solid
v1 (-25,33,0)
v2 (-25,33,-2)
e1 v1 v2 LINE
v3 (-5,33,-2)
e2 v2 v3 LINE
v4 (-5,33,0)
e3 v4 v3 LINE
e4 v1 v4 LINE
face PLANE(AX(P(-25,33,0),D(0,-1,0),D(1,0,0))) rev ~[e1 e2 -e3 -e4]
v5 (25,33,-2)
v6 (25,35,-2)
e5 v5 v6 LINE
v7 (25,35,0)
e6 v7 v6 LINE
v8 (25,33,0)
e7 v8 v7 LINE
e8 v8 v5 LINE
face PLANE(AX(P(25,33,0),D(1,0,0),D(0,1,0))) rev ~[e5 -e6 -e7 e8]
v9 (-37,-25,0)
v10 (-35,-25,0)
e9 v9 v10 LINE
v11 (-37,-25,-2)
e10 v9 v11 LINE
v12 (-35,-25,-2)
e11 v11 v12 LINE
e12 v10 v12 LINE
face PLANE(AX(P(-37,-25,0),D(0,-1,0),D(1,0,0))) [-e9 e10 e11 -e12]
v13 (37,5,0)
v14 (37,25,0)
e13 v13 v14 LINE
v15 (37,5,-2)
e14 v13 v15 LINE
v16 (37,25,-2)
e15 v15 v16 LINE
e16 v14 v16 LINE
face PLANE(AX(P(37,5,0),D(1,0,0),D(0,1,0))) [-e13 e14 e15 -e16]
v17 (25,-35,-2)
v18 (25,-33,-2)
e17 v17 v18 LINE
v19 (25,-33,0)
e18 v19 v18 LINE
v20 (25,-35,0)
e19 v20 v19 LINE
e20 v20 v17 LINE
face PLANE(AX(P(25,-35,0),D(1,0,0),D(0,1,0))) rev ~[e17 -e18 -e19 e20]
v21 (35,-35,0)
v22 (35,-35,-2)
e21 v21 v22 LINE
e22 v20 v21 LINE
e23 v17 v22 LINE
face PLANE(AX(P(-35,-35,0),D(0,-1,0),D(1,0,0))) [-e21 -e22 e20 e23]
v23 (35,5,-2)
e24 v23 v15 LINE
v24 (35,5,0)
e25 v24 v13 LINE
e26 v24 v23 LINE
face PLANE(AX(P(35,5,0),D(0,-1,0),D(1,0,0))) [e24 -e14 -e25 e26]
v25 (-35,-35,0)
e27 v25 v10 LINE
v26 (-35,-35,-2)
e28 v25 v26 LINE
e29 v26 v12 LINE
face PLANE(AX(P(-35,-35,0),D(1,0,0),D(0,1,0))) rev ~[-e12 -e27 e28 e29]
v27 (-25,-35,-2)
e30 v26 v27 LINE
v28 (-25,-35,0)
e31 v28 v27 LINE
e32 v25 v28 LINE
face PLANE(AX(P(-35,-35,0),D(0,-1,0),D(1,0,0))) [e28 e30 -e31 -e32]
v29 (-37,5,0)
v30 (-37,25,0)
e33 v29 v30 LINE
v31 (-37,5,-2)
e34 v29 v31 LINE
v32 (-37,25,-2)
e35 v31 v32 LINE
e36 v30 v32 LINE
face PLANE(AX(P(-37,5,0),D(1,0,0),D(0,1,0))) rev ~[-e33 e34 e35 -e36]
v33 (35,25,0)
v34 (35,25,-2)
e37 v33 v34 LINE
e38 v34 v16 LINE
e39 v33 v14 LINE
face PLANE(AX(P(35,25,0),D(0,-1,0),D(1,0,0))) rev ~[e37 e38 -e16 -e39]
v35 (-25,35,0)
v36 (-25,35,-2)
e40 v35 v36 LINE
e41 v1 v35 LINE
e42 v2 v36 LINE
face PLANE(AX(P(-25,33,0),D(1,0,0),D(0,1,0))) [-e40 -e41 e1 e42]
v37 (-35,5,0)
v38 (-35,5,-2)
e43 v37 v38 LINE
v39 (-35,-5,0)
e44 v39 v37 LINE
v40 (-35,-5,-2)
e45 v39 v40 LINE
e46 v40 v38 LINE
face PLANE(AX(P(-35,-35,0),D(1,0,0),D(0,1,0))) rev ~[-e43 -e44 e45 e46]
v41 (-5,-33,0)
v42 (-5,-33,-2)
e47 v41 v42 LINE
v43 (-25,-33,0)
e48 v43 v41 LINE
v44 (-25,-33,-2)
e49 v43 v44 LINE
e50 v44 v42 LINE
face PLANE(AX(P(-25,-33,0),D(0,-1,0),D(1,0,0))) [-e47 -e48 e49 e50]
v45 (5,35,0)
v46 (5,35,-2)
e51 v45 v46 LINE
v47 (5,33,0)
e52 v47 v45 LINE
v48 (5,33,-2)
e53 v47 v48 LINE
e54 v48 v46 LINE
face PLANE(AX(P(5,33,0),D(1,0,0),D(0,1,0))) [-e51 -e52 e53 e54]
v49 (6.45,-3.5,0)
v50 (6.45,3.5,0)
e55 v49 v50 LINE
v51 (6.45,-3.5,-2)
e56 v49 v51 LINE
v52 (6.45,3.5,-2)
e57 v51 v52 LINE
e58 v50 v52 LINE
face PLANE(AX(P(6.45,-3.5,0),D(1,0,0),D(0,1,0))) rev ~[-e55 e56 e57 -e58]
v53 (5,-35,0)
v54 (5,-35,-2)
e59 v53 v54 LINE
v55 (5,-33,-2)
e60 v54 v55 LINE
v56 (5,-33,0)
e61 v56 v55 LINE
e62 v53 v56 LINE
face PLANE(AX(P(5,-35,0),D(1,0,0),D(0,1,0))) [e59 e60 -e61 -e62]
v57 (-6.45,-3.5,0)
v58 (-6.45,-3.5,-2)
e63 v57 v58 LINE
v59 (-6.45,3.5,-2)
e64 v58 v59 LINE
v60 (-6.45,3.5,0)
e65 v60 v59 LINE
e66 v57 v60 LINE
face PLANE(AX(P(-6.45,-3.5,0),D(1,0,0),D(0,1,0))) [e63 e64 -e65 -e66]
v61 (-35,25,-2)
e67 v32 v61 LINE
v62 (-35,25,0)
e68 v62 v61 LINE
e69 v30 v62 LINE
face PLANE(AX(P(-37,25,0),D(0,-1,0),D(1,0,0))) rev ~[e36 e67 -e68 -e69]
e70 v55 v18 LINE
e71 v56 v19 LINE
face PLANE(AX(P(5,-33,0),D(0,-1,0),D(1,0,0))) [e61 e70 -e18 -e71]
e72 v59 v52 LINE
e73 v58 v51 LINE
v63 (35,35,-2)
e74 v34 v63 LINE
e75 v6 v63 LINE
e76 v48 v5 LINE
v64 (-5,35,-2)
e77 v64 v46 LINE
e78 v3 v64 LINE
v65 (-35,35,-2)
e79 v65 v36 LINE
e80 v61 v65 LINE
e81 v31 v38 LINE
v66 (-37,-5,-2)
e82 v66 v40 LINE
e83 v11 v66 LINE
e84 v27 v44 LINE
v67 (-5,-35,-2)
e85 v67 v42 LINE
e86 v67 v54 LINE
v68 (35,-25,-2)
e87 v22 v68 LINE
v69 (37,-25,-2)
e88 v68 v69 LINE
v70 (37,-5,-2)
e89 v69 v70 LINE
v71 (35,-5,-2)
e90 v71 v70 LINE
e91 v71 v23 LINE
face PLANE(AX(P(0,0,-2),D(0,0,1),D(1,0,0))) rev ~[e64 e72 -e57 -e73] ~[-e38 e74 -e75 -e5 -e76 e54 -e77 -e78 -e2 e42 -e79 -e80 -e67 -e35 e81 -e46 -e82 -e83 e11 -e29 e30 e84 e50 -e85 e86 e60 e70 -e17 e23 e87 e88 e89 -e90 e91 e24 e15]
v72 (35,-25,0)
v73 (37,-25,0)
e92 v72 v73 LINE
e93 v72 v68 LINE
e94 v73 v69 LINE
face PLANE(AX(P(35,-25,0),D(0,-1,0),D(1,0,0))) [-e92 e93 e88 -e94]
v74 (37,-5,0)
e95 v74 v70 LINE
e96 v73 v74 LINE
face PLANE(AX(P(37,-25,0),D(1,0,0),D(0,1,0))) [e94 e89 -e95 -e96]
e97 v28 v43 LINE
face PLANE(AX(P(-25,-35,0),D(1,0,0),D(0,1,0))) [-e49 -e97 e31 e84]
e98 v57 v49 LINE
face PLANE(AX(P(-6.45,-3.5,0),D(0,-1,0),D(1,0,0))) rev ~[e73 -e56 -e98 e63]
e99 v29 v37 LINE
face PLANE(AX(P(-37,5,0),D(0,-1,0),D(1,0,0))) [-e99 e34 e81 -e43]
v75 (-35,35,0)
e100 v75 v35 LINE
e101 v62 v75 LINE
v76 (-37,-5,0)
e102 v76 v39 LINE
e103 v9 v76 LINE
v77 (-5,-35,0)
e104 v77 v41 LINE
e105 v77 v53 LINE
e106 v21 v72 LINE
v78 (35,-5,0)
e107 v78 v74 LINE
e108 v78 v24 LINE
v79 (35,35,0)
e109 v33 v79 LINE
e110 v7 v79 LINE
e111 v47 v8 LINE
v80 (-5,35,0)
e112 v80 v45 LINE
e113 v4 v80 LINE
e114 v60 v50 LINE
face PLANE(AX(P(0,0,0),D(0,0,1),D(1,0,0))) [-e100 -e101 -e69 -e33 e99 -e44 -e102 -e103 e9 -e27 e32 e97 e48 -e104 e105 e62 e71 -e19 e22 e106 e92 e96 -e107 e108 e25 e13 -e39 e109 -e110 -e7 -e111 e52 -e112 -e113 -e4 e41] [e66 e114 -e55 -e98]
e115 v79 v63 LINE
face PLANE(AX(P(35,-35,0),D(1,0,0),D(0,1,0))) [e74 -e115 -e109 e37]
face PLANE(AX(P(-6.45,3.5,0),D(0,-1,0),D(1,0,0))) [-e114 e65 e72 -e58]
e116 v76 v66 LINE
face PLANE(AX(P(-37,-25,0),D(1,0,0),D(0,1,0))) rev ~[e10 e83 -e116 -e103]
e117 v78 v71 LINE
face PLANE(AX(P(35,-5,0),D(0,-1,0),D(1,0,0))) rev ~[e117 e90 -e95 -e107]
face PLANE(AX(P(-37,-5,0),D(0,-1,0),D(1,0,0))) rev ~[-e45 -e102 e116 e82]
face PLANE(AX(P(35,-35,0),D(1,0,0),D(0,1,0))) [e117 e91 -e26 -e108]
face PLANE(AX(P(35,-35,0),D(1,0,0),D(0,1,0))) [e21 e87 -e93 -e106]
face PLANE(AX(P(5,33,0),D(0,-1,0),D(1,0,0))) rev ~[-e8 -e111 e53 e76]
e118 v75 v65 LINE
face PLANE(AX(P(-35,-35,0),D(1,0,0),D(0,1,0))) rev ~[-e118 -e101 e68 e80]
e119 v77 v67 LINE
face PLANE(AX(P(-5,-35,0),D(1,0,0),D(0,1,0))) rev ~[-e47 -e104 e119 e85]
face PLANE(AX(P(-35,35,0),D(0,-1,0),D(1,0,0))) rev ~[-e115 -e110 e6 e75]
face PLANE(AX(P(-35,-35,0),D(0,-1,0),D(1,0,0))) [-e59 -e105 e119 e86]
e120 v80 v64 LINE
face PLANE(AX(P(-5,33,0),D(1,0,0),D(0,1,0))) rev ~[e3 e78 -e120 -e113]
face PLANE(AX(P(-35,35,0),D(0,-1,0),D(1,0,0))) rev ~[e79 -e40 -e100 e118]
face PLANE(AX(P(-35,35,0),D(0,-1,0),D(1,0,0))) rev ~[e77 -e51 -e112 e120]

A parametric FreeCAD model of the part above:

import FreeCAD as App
import Part
import Sketcher

V = App.Vector


def add_polygon(sketch, points):
    """Adds a closed chain of lines whose ends are joined by coincident constraints."""
    first, n = sketch.GeometryCount, len(points)
    for a, b in zip(points, points[1:] + points[:1]):
        sketch.addGeometry(Part.LineSegment(App.Vector(*a, 0), App.Vector(*b, 0)), False)
    for i in range(n):
        sketch.addConstraint(Sketcher.Constraint("Coincident", first + i, 2, first + (i + 1) % n, 1))

doc = App.newDocument("Part")
body = doc.addObject("PartDesign::Body", "Body")

sketch1 = body.newObject("Sketcher::SketchObject", "Sketch")
sketch1.AttachmentSupport = (doc.getObject("XY_Plane"), [""])
sketch1.MapMode = "FlatFace"
add_polygon(sketch1, [(-35, 35), (-35, -35), (35, -35), (35, 35)])
sketch1.addConstraint([
    Sketcher.Constraint("Vertical", 0),
    Sketcher.Constraint("Horizontal", 1),
    Sketcher.Constraint("Vertical", 2),
    Sketcher.Constraint("Horizontal", 3),
    Sketcher.Constraint("Symmetric", 0, 2, 2, 2, -1, 1),
    Sketcher.Constraint("Equal", 3, 0),
    Sketcher.Constraint("DistanceX", 1, 1, 1, 2, 70.0),
])
pad1 = body.newObject("PartDesign::Pad", "Pad")
pad1.Profile = sketch1
pad1.Length = 2
pad1.Reversed = True

sketch2 = body.newObject("Sketcher::SketchObject", "Sketch001")
sketch2.AttachmentSupport = (doc.getObject("XY_Plane"), [""])
sketch2.MapMode = "FlatFace"
add_polygon(sketch2, [(-37, 25), (-37, 5), (-35, 5), (-35, 25)])
add_polygon(sketch2, [(-37, -5), (-37, -25), (-35, -25), (-35, -5)])
add_polygon(sketch2, [(35, -5), (35, -25), (37, -25), (37, -5)])
add_polygon(sketch2, [(35, 25), (35, 5), (37, 5), (37, 25)])
sketch2.addConstraint([
    Sketcher.Constraint("Vertical", 0),
    Sketcher.Constraint("Horizontal", 1),
    Sketcher.Constraint("Vertical", 2),
    Sketcher.Constraint("Horizontal", 3),
    Sketcher.Constraint("Vertical", 4),
    Sketcher.Constraint("Horizontal", 5),
    Sketcher.Constraint("Vertical", 6),
    Sketcher.Constraint("Horizontal", 7),
    Sketcher.Constraint("Vertical", 8),
    Sketcher.Constraint("Horizontal", 9),
    Sketcher.Constraint("Vertical", 10),
    Sketcher.Constraint("Horizontal", 11),
    Sketcher.Constraint("Vertical", 12),
    Sketcher.Constraint("Horizontal", 13),
    Sketcher.Constraint("Vertical", 14),
    Sketcher.Constraint("Horizontal", 15),
    Sketcher.Constraint("Symmetric", 2, 2, 8, 2, -1, 1),
    Sketcher.Constraint("Symmetric", 0, 2, 10, 2, -1, 1),
    Sketcher.Constraint("Symmetric", 6, 2, 12, 2, -1, 1),
    Sketcher.Constraint("Symmetric", 4, 2, 14, 2, -1, 1),
    Sketcher.Constraint("Symmetric", 5, 2, 8, 2, -2),
    Sketcher.Constraint("Symmetric", 7, 2, 10, 2, -2),
    Sketcher.Constraint("DistanceX", 1, 1, 1, 2, 2.0),
    Sketcher.Constraint("DistanceY", 0, 2, 0, 1, 20.0),
    Sketcher.Constraint("DistanceX", 0, 2, -1, 1, 37.0),
    Sketcher.Constraint("DistanceY", -1, 1, 0, 2, 5.0),
])
pad2 = body.newObject("PartDesign::Pad", "Pad001")
pad2.Profile = sketch2
pad2.Length = 2
pad2.Reversed = True

sketch3 = body.newObject("Sketcher::SketchObject", "Sketch002")
sketch3.AttachmentSupport = (doc.getObject("XY_Plane"), [""])
sketch3.MapMode = "FlatFace"
add_polygon(sketch3, [(-25, 35), (-25, 33), (-5, 33), (-5, 35)])
add_polygon(sketch3, [(5, 35), (5, 33), (25, 33), (25, 35)])
add_polygon(sketch3, [(-25, -33), (-25, -35), (-5, -35), (-5, -33)])
add_polygon(sketch3, [(5, -33), (5, -35), (25, -35), (25, -33)])
sketch3.addConstraint([
    Sketcher.Constraint("Vertical", 0),
    Sketcher.Constraint("Horizontal", 1),
    Sketcher.Constraint("Vertical", 2),
    Sketcher.Constraint("Horizontal", 3),
    Sketcher.Constraint("Vertical", 4),
    Sketcher.Constraint("Horizontal", 5),
    Sketcher.Constraint("Vertical", 6),
    Sketcher.Constraint("Horizontal", 7),
    Sketcher.Constraint("Vertical", 8),
    Sketcher.Constraint("Horizontal", 9),
    Sketcher.Constraint("Vertical", 10),
    Sketcher.Constraint("Horizontal", 11),
    Sketcher.Constraint("Vertical", 12),
    Sketcher.Constraint("Horizontal", 13),
    Sketcher.Constraint("Vertical", 14),
    Sketcher.Constraint("Horizontal", 15),
    Sketcher.Constraint("Symmetric", 6, 2, 8, 2, -1, 1),
    Sketcher.Constraint("Symmetric", 4, 2, 10, 2, -1, 1),
    Sketcher.Constraint("Symmetric", 2, 2, 12, 2, -1, 1),
    Sketcher.Constraint("Symmetric", 0, 2, 14, 2, -1, 1),
    Sketcher.Constraint("Symmetric", 1, 2, 4, 2, -2),
    Sketcher.Constraint("Symmetric", 3, 2, 6, 2, -2),
    Sketcher.Constraint("DistanceX", 1, 1, 1, 2, 20.0),
    Sketcher.Constraint("DistanceY", 0, 2, 0, 1, 2.0),
    Sketcher.Constraint("DistanceX", 0, 2, -1, 1, 25.0),
    Sketcher.Constraint("DistanceY", -1, 1, 0, 2, 33.0),
])
pocket1 = body.newObject("PartDesign::Pocket", "Pocket")
pocket1.Profile = sketch3
pocket1.Length = 2

sketch4 = body.newObject("Sketcher::SketchObject", "Sketch003")
sketch4.AttachmentSupport = (doc.getObject("XY_Plane"), [""])
sketch4.MapMode = "FlatFace"
add_polygon(sketch4, [(-6.45, 3.5), (-6.45, -3.5), (6.45, -3.5), (6.45, 3.5)])
sketch4.addConstraint([
    Sketcher.Constraint("Vertical", 0),
    Sketcher.Constraint("Horizontal", 1),
    Sketcher.Constraint("Vertical", 2),
    Sketcher.Constraint("Horizontal", 3),
    Sketcher.Constraint("Symmetric", 0, 2, 2, 2, -1, 1),
    Sketcher.Constraint("DistanceY", 0, 2, 0, 1, 7.0),
    Sketcher.Constraint("DistanceX", 1, 1, 1, 2, 12.9),
])
pocket2 = body.newObject("PartDesign::Pocket", "Pocket001")
pocket2.Profile = sketch4
pocket2.Length = 10

doc.recompute()
